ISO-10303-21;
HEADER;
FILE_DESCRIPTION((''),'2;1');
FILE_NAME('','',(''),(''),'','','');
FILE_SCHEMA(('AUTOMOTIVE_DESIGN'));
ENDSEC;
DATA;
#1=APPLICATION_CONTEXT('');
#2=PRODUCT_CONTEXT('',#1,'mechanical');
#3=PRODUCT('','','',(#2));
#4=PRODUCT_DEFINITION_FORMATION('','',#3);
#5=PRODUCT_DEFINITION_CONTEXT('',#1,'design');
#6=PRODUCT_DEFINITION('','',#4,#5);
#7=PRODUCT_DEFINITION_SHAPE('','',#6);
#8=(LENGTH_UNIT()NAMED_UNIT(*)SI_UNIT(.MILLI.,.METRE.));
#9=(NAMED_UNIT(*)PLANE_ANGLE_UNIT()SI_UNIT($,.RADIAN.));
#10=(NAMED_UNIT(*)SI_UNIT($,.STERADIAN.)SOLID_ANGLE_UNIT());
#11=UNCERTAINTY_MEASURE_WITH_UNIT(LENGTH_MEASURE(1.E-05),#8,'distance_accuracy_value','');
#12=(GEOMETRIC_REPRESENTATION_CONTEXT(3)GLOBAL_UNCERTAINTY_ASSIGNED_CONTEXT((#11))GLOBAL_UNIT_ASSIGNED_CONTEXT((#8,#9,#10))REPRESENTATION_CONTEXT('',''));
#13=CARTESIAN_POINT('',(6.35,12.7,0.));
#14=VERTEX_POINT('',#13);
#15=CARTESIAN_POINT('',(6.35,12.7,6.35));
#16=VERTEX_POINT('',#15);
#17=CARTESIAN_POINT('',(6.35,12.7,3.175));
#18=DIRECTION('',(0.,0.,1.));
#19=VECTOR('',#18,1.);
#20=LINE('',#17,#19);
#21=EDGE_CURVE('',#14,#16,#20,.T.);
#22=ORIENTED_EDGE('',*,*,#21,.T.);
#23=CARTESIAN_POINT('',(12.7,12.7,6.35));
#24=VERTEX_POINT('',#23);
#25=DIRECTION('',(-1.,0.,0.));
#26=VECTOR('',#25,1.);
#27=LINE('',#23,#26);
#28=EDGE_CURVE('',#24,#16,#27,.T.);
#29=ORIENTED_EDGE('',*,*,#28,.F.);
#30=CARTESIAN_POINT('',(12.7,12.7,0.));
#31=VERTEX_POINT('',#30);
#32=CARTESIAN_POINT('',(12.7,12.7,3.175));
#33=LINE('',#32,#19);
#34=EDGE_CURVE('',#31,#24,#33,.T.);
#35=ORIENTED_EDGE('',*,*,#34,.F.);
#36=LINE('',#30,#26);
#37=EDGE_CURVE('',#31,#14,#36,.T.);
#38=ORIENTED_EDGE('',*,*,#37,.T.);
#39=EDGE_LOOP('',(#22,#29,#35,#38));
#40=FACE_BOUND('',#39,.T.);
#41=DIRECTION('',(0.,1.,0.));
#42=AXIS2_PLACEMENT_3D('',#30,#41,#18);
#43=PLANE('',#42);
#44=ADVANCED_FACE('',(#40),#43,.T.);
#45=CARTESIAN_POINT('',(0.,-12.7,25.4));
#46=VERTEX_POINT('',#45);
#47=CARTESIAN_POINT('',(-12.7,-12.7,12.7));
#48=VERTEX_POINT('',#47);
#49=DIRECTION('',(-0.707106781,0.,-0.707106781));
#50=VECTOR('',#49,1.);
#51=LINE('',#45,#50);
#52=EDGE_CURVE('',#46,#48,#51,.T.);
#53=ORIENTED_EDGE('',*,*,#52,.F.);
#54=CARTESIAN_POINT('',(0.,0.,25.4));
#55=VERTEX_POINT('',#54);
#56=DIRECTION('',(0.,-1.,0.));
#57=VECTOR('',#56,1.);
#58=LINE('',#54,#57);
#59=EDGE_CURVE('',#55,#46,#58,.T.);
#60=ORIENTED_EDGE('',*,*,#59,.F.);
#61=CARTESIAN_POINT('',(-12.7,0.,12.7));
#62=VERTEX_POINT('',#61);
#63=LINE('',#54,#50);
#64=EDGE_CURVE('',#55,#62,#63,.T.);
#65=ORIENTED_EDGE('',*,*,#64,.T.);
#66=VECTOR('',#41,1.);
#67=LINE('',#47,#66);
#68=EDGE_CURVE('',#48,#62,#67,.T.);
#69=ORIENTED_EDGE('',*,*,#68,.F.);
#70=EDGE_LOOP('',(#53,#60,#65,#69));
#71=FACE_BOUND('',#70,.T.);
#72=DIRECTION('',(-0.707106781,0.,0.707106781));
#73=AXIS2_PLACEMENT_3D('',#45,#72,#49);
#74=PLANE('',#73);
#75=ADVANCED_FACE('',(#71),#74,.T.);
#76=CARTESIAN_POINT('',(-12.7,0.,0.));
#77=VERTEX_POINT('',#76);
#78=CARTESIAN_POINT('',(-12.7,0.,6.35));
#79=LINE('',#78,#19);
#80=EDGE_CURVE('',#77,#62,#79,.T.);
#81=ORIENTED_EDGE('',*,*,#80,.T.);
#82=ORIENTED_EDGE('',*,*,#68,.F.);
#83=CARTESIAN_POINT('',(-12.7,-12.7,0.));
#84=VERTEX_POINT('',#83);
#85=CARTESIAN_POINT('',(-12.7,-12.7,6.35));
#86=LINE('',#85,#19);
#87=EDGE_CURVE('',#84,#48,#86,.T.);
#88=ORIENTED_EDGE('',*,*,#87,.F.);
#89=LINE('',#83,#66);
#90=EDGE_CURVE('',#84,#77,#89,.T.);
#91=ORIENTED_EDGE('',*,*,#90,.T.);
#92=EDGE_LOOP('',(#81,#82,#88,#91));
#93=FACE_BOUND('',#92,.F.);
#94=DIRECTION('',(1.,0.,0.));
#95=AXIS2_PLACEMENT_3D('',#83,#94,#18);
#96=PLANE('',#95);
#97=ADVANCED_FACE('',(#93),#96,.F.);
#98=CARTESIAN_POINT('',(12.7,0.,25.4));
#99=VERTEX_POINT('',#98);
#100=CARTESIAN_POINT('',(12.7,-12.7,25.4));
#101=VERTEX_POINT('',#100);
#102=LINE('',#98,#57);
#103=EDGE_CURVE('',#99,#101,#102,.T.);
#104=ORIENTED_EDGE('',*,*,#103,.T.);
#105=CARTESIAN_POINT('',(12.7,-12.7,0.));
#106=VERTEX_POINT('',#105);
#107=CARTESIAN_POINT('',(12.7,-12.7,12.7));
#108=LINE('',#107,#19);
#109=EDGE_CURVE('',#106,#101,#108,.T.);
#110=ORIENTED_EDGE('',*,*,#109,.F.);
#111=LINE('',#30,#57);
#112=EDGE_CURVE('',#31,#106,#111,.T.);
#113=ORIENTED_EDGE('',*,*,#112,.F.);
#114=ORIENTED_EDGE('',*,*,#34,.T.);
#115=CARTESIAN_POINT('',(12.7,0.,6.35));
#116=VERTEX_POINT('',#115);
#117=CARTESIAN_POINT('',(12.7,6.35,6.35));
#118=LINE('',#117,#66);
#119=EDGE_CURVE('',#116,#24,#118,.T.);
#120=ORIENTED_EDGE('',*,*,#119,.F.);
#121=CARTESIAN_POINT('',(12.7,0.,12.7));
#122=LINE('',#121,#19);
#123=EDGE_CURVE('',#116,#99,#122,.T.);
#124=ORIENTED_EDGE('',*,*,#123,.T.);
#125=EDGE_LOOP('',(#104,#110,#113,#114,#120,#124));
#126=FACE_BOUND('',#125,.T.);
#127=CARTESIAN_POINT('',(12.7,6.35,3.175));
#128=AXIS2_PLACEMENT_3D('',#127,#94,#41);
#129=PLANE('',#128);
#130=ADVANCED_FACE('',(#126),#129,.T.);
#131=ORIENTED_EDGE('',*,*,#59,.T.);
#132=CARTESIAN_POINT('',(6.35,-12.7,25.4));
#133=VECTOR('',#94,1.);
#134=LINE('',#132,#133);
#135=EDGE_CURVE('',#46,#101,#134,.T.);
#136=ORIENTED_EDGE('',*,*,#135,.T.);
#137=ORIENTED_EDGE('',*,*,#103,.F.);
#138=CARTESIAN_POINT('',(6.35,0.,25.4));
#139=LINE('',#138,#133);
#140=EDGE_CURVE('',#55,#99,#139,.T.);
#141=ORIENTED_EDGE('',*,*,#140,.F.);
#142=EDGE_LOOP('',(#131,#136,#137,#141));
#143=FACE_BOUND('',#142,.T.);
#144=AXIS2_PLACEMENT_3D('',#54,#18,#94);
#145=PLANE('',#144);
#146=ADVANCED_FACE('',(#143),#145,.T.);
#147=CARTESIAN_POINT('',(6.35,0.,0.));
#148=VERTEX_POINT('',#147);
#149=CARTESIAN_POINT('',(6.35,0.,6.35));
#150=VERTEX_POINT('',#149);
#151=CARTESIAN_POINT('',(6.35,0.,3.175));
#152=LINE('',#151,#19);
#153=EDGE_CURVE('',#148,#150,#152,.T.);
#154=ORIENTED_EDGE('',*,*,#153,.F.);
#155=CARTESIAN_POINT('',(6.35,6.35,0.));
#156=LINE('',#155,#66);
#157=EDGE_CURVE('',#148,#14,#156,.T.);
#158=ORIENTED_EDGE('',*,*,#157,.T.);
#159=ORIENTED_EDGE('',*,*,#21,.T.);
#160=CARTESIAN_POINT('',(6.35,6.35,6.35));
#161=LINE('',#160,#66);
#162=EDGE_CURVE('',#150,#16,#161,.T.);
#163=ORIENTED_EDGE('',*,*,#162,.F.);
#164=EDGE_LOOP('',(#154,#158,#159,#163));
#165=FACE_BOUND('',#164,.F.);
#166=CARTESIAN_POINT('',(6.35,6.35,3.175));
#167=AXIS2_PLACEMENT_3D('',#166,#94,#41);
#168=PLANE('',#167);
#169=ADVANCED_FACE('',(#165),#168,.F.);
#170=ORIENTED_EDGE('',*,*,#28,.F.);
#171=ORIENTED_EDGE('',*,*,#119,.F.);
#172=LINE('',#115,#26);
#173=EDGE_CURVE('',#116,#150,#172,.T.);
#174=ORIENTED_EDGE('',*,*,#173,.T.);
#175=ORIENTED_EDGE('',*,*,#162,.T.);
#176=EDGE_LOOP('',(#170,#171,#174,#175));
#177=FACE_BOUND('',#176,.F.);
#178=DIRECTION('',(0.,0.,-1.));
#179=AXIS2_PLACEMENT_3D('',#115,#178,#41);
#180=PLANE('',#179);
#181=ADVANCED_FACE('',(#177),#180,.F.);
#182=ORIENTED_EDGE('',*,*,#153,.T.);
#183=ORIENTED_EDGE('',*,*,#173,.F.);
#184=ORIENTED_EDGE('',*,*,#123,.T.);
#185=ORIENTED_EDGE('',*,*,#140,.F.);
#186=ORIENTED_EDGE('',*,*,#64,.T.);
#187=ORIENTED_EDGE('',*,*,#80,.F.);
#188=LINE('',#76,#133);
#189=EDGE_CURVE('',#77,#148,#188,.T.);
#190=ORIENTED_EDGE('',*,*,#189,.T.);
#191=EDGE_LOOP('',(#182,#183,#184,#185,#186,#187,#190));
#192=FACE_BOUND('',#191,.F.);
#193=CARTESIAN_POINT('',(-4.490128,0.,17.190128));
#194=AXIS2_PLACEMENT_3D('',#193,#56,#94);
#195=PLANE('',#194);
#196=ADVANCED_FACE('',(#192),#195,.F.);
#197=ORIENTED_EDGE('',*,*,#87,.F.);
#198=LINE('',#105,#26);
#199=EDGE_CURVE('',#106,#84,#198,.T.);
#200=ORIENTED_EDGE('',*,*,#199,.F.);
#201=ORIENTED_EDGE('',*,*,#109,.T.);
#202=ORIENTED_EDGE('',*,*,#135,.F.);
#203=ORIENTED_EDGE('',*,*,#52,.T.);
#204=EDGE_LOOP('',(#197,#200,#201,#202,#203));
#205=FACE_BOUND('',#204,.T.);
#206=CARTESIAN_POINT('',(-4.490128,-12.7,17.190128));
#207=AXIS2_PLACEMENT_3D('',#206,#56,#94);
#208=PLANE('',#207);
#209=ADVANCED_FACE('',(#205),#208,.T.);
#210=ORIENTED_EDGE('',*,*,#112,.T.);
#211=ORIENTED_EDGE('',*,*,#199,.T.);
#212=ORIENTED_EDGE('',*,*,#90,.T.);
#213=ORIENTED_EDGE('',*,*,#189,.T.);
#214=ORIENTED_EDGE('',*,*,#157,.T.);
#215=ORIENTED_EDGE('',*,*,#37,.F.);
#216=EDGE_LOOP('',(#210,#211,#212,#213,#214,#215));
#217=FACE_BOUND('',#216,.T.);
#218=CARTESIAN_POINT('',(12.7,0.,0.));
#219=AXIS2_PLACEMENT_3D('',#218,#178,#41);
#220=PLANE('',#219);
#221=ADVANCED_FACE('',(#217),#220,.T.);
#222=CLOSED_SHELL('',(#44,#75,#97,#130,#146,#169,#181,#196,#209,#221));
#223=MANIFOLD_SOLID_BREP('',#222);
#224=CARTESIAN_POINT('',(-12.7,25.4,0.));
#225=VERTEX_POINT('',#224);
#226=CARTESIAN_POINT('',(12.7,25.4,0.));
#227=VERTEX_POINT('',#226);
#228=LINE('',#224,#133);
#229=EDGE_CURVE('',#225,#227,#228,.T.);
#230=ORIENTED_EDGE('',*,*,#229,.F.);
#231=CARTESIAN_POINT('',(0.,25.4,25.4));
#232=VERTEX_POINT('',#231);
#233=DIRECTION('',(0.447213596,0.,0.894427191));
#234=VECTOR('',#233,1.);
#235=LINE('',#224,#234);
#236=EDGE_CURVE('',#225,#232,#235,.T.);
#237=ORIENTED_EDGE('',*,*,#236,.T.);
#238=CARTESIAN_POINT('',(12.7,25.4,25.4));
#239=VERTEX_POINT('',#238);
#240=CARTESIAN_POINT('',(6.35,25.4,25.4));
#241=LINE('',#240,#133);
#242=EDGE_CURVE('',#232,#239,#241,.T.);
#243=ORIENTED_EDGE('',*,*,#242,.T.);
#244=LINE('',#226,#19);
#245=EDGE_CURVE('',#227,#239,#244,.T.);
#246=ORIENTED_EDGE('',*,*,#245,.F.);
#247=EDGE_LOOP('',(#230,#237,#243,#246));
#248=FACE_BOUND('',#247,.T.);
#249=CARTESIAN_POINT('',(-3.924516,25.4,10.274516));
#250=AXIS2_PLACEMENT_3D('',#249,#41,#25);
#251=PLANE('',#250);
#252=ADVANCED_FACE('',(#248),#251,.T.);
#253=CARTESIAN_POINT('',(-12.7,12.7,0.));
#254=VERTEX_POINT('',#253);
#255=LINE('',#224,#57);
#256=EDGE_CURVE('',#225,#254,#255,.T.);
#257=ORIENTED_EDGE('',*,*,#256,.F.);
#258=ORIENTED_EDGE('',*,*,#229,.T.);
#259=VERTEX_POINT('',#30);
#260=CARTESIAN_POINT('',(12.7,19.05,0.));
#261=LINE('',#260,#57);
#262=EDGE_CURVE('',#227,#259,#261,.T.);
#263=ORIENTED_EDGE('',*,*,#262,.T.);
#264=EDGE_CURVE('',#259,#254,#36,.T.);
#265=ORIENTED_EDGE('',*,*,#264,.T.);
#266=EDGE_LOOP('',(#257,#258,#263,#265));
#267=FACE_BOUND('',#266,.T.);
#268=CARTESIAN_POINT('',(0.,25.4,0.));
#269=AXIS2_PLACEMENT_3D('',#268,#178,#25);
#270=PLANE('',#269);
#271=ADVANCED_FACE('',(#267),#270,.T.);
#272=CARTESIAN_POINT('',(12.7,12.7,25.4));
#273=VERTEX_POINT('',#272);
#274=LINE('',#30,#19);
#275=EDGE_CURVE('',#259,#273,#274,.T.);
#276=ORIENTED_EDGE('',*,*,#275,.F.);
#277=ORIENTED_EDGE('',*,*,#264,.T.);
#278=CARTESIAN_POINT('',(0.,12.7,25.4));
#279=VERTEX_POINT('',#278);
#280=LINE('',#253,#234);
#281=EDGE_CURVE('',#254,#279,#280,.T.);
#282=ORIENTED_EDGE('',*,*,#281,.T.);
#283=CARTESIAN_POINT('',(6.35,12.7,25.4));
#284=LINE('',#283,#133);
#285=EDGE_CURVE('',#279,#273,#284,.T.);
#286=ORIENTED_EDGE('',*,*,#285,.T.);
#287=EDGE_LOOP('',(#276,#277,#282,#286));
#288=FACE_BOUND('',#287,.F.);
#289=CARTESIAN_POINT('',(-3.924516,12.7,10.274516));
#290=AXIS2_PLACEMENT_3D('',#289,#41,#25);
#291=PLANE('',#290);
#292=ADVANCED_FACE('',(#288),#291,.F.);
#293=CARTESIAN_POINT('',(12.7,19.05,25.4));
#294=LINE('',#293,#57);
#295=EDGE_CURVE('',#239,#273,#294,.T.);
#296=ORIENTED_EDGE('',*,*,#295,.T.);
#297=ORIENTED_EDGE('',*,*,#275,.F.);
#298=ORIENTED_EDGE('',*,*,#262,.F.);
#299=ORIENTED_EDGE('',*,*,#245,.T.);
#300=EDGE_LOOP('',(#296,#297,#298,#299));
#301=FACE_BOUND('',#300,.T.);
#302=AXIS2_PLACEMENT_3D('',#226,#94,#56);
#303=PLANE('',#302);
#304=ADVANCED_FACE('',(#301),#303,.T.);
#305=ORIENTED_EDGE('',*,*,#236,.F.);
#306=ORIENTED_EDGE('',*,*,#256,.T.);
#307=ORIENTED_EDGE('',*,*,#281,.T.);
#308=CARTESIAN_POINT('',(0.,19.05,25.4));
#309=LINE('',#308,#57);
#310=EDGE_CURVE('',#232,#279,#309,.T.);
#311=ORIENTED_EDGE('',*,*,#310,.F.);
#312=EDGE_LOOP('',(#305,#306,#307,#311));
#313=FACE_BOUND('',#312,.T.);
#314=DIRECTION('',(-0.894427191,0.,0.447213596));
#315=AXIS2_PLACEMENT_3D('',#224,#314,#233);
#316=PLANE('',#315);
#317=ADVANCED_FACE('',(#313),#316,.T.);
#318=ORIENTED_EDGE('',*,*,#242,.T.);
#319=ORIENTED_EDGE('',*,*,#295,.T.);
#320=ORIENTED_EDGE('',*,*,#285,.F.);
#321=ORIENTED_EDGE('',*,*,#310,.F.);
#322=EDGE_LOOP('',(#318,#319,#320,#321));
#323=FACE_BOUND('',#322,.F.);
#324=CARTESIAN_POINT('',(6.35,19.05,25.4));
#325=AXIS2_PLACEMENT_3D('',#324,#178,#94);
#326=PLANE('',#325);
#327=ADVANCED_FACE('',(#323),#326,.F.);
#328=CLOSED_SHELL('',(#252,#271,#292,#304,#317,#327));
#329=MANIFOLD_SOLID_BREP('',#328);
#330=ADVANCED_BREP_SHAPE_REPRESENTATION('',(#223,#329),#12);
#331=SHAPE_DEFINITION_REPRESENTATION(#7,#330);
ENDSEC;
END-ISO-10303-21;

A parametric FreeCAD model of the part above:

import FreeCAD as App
import Part
import Sketcher
Q = App.Units.Quantity


def add_polygon(sketch, points):
    """Adds a closed chain of lines whose ends are joined by coincident constraints."""
    first, n = sketch.GeometryCount, len(points)
    for a, b in zip(points, points[1:] + points[:1]):
        sketch.addGeometry(Part.LineSegment(App.Vector(*a, 0), App.Vector(*b, 0)), False)
    for i in range(n):
        sketch.addConstraint(Sketcher.Constraint("Coincident", first + i, 2, first + (i + 1) % n, 1))

doc = App.newDocument("Part")
body = doc.addObject("PartDesign::Body", "Body")

# Sketch on XZ plane
sketch1 = body.newObject("Sketcher::SketchObject", "Sketch")
sketch1.AttachmentSupport = (doc.getObject("XZ_Plane"), [""])
sketch1.MapMode = "FlatFace"
add_polygon(sketch1, [(0, 25), (0, 0), (13, 0), (13, 25)])  # lines 0-3
sketch1.addConstraint(Sketcher.Constraint("Vertical", 0))
sketch1.addConstraint(Sketcher.Constraint("Horizontal", 1))
sketch1.addConstraint(Sketcher.Constraint("Vertical", 2))
sketch1.addConstraint(Sketcher.Constraint("Horizontal", 3))
sketch1.addConstraint(Sketcher.Constraint("Coincident", 0, 2, -1, 1))
sketch1.addConstraint(Sketcher.Constraint("DistanceY", 0, 2, 0, 1, Q("1 in")))
sketch1.addConstraint(Sketcher.Constraint("DistanceX", 1, 1, 1, 2, Q("0.5 in")))
pad1 = body.newObject("PartDesign::Pad", "Pad")
pad1.Profile = sketch1
pad1.Length = Q("0.5 in")

# Sketch on XZ plane
sketch2 = body.newObject("Sketcher::SketchObject", "Sketch001")
sketch2.AttachmentSupport = (doc.getObject("XZ_Plane"), [""])
sketch2.MapMode = "FlatFace"
sketch2.AttachmentOffset = App.Placement(App.Vector(0, 0, 0.5 * 25.4), App.Rotation())
add_polygon(sketch2, [(-13, 13), (-13, 0), (0, 0), (0, 13)])  # lines 0-3
sketch2.addConstraint(Sketcher.Constraint("Vertical", 0))
sketch2.addConstraint(Sketcher.Constraint("Horizontal", 1))
sketch2.addConstraint(Sketcher.Constraint("Vertical", 2))
sketch2.addConstraint(Sketcher.Constraint("Horizontal", 3))
sketch2.addConstraint(Sketcher.Constraint("Coincident", 1, 2, -1, 1))
sketch2.addConstraint(Sketcher.Constraint("Equal", 3, 0))
sketch2.addConstraint(Sketcher.Constraint("DistanceX", 1, 1, 1, 2, Q("0.5 in")))
pad2 = body.newObject("PartDesign::Pad", "Pad001")
pad2.Profile = sketch2
pad2.Length = Q("0.5 in")
pad2.Reversed = True

# Sketch on XZ plane
sketch3 = body.newObject("Sketcher::SketchObject", "Sketch002")
sketch3.AttachmentSupport = (doc.getObject("XZ_Plane"), [""])
sketch3.MapMode = "FlatFace"
sketch3.AttachmentOffset = App.Placement(App.Vector(0, 0, 0.5 * 25.4), App.Rotation())
add_polygon(sketch3, [(0, 25), (-13, 13), (0, 13)])  # lines 0-2
sketch3.addConstraint(Sketcher.Constraint("Horizontal", 1))
sketch3.addConstraint(Sketcher.Constraint("Vertical", 2))
sketch3.addConstraint(Sketcher.Constraint("PointOnObject", 1, 2, -2))
sketch3.addConstraint(Sketcher.Constraint("Equal", 1, 2))
sketch3.addConstraint(Sketcher.Constraint("DistanceX", 1, 1, 1, 2, Q("0.5 in")))
sketch3.addConstraint(Sketcher.Constraint("DistanceY", -1, 1, 2, 2, Q("1 in")))
pad3 = body.newObject("PartDesign::Pad", "Pad002")
pad3.Profile = sketch3
pad3.Length = Q("0.5 in")
pad3.Reversed = True

# Sketch on YZ plane
sketch4 = body.newObject("Sketcher::SketchObject", "Sketch003")
sketch4.AttachmentSupport = (doc.getObject("YZ_Plane"), [""])
sketch4.MapMode = "FlatFace"
sketch4.AttachmentOffset = App.Placement(App.Vector(0, 0, 0.5 * 25.4), App.Rotation())
add_polygon(sketch4, [(0, 6), (0, 0), (13, 0), (13, 6)])  # lines 0-3
sketch4.addConstraint(Sketcher.Constraint("Vertical", 0))
sketch4.addConstraint(Sketcher.Constraint("Horizontal", 1))
sketch4.addConstraint(Sketcher.Constraint("Vertical", 2))
sketch4.addConstraint(Sketcher.Constraint("Horizontal", 3))
sketch4.addConstraint(Sketcher.Constraint("Coincident", 0, 2, -1, 1))
sketch4.addConstraint(Sketcher.Constraint("DistanceX", 1, 1, 1, 2, Q("0.5 in")))
sketch4.addConstraint(Sketcher.Constraint("DistanceY", 0, 2, 0, 1, Q("0.25 in")))
pad4 = body.newObject("PartDesign::Pad", "Pad003")
pad4.Profile = sketch4
pad4.Length = Q("0.25 in")
pad4.Reversed = True
body2 = doc.addObject("PartDesign::Body", "Body001")

# Sketch on XY plane
sketch5 = body2.newObject("Sketcher::SketchObject", "Sketch004")
sketch5.AttachmentSupport = (doc.getObject("XY_Plane001"), [""])
sketch5.MapMode = "FlatFace"
add_polygon(sketch5, [(0, 13), (0, 25), (13, 25), (13, 13)])  # lines 0-3
sketch5.addConstraint(Sketcher.Constraint("Vertical", 0))
sketch5.addConstraint(Sketcher.Constraint("Horizontal", 1))
sketch5.addConstraint(Sketcher.Constraint("Vertical", 2))
sketch5.addConstraint(Sketcher.Constraint("Horizontal", 3))
sketch5.addConstraint(Sketcher.Constraint("PointOnObject", 0, 2, -2))
sketch5.addConstraint(Sketcher.Constraint("Equal", 3, 0))
sketch5.addConstraint(Sketcher.Constraint("DistanceX", 1, 1, 1, 2, Q("0.5 in")))
sketch5.addConstraint(Sketcher.Constraint("DistanceY", -1, 1, 0, 2, Q("1 in")))
pad5 = body2.newObject("PartDesign::Pad", "Pad004")
pad5.Profile = sketch5
pad5.Length = Q("1 in")

# Sketch on XZ plane
sketch6 = body2.newObject("Sketcher::SketchObject", "Sketch005")
sketch6.AttachmentSupport = (doc.getObject("XZ_Plane001"), [""])
sketch6.MapMode = "FlatFace"
sketch6.AttachmentOffset = App.Placement(App.Vector(0, 0, -1 * 25.4), App.Rotation())
add_polygon(sketch6, [(0, 25), (0, 0), (-13, 0)])  # lines 0-2
sketch6.addConstraint(Sketcher.Constraint("Vertical", 0))
sketch6.addConstraint(Sketcher.Constraint("Horizontal", 1))
sketch6.addConstraint(Sketcher.Constraint("Coincident", 0, 2, -1, 1))
sketch6.addConstraint(Sketcher.Constraint("DistanceY", 0, 2, 0, 1, Q("1 in")))
sketch6.addConstraint(Sketcher.Constraint("DistanceX", 1, 2, 1, 1, Q("0.5 in")))
pad6 = body2.newObject("PartDesign::Pad", "Pad005")
pad6.Profile = sketch6
pad6.Length = Q("0.5 in")

doc.recompute()
